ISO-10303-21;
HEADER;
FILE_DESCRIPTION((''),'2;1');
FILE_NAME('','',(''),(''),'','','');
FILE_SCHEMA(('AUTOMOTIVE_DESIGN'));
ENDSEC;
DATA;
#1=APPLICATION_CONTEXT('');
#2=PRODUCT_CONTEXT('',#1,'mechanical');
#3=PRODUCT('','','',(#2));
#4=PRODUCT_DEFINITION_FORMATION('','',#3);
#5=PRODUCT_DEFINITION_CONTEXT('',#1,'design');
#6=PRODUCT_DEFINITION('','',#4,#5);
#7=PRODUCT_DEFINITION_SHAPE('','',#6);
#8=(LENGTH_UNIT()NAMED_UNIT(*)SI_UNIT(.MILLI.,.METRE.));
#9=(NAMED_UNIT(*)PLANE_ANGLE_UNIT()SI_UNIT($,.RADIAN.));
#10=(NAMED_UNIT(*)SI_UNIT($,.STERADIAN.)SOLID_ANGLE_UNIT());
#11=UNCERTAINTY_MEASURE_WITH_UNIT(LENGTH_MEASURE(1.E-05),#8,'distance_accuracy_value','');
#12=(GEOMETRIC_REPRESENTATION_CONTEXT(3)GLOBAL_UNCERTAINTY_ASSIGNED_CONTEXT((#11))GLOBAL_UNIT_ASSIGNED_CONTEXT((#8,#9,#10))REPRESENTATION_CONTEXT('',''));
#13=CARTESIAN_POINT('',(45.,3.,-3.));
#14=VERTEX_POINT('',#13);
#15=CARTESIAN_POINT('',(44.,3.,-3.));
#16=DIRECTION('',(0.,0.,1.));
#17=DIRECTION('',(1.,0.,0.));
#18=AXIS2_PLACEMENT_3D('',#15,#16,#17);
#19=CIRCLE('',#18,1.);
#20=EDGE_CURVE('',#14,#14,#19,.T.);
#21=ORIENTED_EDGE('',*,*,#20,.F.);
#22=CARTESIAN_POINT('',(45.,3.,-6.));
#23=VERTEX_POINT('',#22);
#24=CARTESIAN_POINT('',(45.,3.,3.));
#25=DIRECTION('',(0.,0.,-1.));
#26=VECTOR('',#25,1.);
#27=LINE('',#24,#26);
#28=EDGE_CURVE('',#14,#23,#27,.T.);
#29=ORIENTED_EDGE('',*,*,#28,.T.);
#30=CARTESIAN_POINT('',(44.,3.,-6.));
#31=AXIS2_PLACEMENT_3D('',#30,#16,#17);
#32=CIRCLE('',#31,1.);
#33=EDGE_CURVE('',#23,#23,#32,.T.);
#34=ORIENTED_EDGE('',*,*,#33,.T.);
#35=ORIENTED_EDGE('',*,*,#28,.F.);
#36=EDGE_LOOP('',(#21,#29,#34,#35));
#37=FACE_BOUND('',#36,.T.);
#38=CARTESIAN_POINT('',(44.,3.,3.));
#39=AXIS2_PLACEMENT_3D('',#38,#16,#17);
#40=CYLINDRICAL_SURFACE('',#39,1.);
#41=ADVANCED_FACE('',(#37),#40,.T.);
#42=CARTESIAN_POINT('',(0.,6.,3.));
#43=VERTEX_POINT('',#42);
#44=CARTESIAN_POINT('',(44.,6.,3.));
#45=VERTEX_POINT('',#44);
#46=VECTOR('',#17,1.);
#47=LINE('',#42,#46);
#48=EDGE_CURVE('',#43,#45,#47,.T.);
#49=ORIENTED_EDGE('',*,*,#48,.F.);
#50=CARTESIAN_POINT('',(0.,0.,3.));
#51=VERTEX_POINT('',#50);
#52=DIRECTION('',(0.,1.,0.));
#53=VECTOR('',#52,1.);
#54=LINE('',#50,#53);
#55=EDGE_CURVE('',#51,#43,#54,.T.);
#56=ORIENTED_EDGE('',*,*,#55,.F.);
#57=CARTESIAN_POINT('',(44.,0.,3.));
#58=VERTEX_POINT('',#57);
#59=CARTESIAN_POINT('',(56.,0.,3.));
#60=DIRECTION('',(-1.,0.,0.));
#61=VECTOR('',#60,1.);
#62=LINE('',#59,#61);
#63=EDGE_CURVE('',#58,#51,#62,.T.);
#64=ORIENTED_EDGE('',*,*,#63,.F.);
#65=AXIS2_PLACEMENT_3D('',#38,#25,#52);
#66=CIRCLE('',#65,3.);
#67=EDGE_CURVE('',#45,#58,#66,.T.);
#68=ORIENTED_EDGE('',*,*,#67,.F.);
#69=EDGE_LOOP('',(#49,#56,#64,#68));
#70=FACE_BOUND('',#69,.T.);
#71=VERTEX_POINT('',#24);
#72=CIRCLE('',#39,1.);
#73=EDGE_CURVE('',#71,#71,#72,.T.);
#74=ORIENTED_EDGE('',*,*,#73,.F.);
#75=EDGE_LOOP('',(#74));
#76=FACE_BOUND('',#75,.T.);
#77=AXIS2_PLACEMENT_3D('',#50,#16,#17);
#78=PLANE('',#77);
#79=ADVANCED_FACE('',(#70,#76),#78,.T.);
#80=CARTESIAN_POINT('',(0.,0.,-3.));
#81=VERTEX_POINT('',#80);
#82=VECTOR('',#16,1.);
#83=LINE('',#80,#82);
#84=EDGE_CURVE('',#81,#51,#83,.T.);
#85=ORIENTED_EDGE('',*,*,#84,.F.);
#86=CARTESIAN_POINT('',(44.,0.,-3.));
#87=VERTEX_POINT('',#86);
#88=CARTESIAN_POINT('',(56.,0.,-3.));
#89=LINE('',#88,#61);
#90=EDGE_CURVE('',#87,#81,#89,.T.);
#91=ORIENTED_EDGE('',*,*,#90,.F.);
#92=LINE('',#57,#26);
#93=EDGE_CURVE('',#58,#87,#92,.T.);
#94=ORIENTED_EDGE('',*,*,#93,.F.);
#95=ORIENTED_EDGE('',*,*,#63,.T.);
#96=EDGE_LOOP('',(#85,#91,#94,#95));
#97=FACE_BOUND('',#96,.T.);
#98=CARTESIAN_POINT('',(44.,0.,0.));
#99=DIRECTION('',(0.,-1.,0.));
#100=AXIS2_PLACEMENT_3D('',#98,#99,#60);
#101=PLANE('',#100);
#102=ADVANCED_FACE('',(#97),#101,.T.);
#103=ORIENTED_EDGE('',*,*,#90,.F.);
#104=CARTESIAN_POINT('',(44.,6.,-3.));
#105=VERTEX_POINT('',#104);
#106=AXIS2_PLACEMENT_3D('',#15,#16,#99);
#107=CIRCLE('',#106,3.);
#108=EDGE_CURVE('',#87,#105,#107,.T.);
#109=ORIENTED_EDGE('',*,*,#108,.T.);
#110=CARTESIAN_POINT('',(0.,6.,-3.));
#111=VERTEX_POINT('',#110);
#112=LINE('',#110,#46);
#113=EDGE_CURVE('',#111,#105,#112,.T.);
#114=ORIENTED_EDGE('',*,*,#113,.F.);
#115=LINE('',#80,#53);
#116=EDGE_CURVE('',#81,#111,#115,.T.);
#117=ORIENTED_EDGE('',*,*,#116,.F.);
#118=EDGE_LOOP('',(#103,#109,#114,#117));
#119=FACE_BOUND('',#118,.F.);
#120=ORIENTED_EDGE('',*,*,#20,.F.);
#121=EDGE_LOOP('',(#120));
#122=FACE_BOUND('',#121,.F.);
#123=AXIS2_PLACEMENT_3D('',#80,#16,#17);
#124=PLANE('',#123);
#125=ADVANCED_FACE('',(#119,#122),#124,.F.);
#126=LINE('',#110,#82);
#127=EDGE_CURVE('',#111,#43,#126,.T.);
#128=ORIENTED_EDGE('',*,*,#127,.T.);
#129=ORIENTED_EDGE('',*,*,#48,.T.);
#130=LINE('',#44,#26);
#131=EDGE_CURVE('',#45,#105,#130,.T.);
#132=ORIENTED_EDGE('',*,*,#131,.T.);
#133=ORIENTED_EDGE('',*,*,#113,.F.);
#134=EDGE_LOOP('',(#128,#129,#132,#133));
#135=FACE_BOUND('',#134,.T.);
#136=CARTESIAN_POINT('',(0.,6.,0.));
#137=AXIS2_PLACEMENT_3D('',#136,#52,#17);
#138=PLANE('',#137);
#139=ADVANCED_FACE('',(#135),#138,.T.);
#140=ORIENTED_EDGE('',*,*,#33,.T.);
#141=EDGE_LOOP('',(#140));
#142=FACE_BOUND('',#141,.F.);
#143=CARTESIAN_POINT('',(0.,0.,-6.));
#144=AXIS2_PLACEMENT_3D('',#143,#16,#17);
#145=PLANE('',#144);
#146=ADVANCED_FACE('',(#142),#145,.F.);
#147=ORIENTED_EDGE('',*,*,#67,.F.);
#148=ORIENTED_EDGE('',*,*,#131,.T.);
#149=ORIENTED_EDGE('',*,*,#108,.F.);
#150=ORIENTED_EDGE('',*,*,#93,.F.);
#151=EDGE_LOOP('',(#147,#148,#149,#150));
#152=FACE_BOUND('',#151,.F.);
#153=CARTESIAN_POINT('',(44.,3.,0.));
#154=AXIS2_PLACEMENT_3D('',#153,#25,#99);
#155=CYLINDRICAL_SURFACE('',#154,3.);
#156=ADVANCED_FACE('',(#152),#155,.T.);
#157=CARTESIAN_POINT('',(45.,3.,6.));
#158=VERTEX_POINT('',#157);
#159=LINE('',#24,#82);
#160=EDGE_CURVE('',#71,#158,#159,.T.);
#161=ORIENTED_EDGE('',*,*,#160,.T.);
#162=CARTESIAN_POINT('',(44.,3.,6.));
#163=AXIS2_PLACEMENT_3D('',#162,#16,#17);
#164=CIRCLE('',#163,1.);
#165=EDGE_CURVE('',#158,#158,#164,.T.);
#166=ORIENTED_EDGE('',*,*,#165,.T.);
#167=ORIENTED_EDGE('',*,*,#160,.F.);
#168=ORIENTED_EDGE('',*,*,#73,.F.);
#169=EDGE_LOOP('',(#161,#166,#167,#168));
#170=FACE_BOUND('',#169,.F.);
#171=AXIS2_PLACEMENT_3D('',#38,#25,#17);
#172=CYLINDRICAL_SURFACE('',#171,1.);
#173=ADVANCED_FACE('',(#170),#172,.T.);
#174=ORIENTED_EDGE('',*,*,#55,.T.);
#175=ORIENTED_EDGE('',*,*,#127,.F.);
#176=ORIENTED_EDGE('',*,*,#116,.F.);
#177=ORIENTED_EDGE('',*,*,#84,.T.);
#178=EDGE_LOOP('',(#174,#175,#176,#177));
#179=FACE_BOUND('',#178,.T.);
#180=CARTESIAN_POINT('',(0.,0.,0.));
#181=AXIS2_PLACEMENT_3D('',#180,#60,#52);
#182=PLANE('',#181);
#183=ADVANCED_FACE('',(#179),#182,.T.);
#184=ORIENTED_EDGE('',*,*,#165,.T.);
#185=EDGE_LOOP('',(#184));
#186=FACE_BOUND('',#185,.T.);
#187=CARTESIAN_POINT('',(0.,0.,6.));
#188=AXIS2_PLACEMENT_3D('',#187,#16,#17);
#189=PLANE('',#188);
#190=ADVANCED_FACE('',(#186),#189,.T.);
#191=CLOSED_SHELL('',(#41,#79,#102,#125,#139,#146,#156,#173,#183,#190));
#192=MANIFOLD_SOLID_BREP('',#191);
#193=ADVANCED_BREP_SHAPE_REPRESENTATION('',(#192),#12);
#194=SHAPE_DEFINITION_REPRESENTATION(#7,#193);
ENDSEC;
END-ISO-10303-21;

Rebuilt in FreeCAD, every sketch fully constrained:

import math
import FreeCAD as App
import Part
import Sketcher

doc = App.newDocument("Part")
body = doc.addObject("PartDesign::Body", "Body")

sketch1 = body.newObject("Sketcher::SketchObject", "Sketch")
sketch1.AttachmentSupport = (doc.getObject("XY_Plane"), [""])
sketch1.MapMode = "FlatFace"
sketch1.addGeometry(Part.LineSegment(App.Vector(44, 6, 0), App.Vector(0, 6, 0)), False)
sketch1.addGeometry(Part.LineSegment(App.Vector(0, 6, 0), App.Vector(0, 0, 0)), False)
sketch1.addGeometry(Part.LineSegment(App.Vector(0, 0, 0), App.Vector(44, 0, 0)), False)
sketch1.addGeometry(Part.ArcOfCircle(Part.Circle(App.Vector(44, 3, 0), App.Vector(0, 0, 1), 3), math.radians(-90), math.radians(90)), False)
sketch1.addConstraint(Sketcher.Constraint("Coincident", 0, 2, 1, 1))
sketch1.addConstraint(Sketcher.Constraint("Coincident", 1, 2, 2, 1))
sketch1.addConstraint(Sketcher.Constraint("Tangent", 2, 2, 3, 1))
sketch1.addConstraint(Sketcher.Constraint("Tangent", 3, 2, 0, 1))
sketch1.addConstraint(Sketcher.Constraint("Horizontal", 0))
sketch1.addConstraint(Sketcher.Constraint("Vertical", 1))
sketch1.addConstraint(Sketcher.Constraint("Horizontal", 2))
sketch1.addConstraint(Sketcher.Constraint("Coincident", 1, 2, -1, 1))
sketch1.addConstraint(Sketcher.Constraint("Radius", 3, 3.0))
sketch1.addConstraint(Sketcher.Constraint("DistanceX", 0, 2, 0, 1, 44.0))
pad1 = body.newObject("PartDesign::Pad", "Pad")
pad1.Profile = sketch1
pad1.Length = 6
pad1.Midplane = True

sketch2 = body.newObject("Sketcher::SketchObject", "Sketch001")
sketch2.AttachmentSupport = (doc.getObject("XY_Plane"), [""])
sketch2.MapMode = "FlatFace"
sketch2.AttachmentOffset = App.Placement(App.Vector(0, 0, 3), App.Rotation())
sketch2.addGeometry(Part.Circle(App.Vector(44, 3, 0), App.Vector(0, 0, 1), 1), False)
sketch2.addConstraint(Sketcher.Constraint("Diameter", 0, 2.0))
sketch2.addConstraint(Sketcher.Constraint("DistanceY", -1, 1, 0, 3, 3.0))
sketch2.addConstraint(Sketcher.Constraint("DistanceX", -1, 1, 0, 3, 44.0))
pad2 = body.newObject("PartDesign::Pad", "Pad001")
pad2.Profile = sketch2
pad2.Type = "TwoLengths"
pad2.Length = 3
pad2.Length2 = 9

doc.recompute()
